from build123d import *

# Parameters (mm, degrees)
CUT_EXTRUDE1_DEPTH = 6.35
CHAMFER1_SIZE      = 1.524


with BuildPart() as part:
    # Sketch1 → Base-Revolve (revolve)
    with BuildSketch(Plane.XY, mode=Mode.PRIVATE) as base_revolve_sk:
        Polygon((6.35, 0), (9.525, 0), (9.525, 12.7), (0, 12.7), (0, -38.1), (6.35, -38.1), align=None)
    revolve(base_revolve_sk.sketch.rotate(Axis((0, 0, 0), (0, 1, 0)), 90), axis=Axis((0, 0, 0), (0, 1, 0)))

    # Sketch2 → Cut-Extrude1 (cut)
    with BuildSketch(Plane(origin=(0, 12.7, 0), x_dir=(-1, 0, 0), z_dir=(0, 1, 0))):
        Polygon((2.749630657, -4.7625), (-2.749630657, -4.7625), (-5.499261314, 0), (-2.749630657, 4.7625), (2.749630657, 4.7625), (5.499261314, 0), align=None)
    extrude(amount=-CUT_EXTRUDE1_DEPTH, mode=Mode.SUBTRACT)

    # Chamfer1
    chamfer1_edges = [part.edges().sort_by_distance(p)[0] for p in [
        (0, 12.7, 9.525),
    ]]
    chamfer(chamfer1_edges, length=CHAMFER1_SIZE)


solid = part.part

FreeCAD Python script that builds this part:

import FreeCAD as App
import Part
import Sketcher
from FreeCAD import Vector
Q = App.Units.Quantity


def edges_at(feature, points):
    """Names of the edges that pass closest to the given points."""
    edges = feature.Shape.Edges
    near = lambda p: min(range(len(edges)), key=lambda i: edges[i].distToShape(Part.Vertex(*p))[0])
    return sorted({f"Edge{near(p) + 1}" for p in points})

doc = App.newDocument("Part")
body = doc.addObject("PartDesign::Body", "Body")

sketch1 = doc.addObject("Sketcher::SketchObject", "Sketch")
body.addObject(sketch1)
sketch1.AttachmentSupport = (doc.XY_Plane, [""])
sketch1.MapMode = "FlatFace"
sketch1.addGeometry(Part.LineSegment(Vector(6.3, 0, 0), Vector(9.5, 0, 0)), False)
sketch1.addGeometry(Part.LineSegment(Vector(9.5, 0, 0), Vector(9.5, 12.7, 0)), False)
sketch1.addGeometry(Part.LineSegment(Vector(9.5, 12.7, 0), Vector(0, 12.7, 0)), False)
sketch1.addGeometry(Part.LineSegment(Vector(0, 12.7, 0), Vector(0, -38.1, 0)), False)
sketch1.addGeometry(Part.LineSegment(Vector(0, -38.1, 0), Vector(6.3, -38.1, 0)), False)
sketch1.addGeometry(Part.LineSegment(Vector(6.3, -38.1, 0), Vector(6.3, 0, 0)), False)
sketch1.addConstraint(Sketcher.Constraint("Coincident", 0, 2, 1, 1))
sketch1.addConstraint(Sketcher.Constraint("Coincident", 1, 2, 2, 1))
sketch1.addConstraint(Sketcher.Constraint("Coincident", 2, 2, 3, 1))
sketch1.addConstraint(Sketcher.Constraint("Coincident", 3, 2, 4, 1))
sketch1.addConstraint(Sketcher.Constraint("Coincident", 4, 2, 5, 1))
sketch1.addConstraint(Sketcher.Constraint("Coincident", 5, 2, 0, 1))
sketch1.addConstraint(Sketcher.Constraint("Horizontal", 0))
sketch1.addConstraint(Sketcher.Constraint("Vertical", 1))
sketch1.addConstraint(Sketcher.Constraint("Horizontal", 2))
sketch1.addConstraint(Sketcher.Constraint("Vertical", 3))
sketch1.addConstraint(Sketcher.Constraint("Horizontal", 4))
sketch1.addConstraint(Sketcher.Constraint("Vertical", 5))
sketch1.addConstraint(Sketcher.Constraint("PointOnObject", 0, 2, -1))
sketch1.addConstraint(Sketcher.Constraint("PointOnObject", 2, 2, -2))
sketch1.addConstraint(Sketcher.Constraint("DistanceY", 3, 2, 3, 1, Q("2 in")))
sketch1.addConstraint(Sketcher.Constraint("DistanceY", 1, 1, 1, 2, Q("0.5 in")))
sketch1.addConstraint(Sketcher.Constraint("DistanceX", 4, 1, 4, 2, Q("0.25 in")))
sketch1.addConstraint(Sketcher.Constraint("DistanceX", 0, 1, 0, 2, Q("0.125 in")))
revolution = doc.addObject("PartDesign::Revolution", "Revolution")
body.addObject(revolution)
revolution.Profile = sketch1
revolution.ReferenceAxis = (sketch1, ["V_Axis"])
revolution.Angle = 360

sketch2 = doc.addObject("Sketcher::SketchObject", "Sketch001")
body.addObject(sketch2)
sketch2.AttachmentSupport = (doc.XZ_Plane, [""])
sketch2.MapMode = "FlatFace"
sketch2.AttachmentOffset = App.Placement(Vector(0, 0, -0.5 * 25.4), App.Rotation())
sketch2.addGeometry(Part.LineSegment(Vector(3, -5, 0), Vector(-3, -5, 0)), False)
sketch2.addGeometry(Part.LineSegment(Vector(-3, -5, 0), Vector(-5, 0, 0)), False)
sketch2.addGeometry(Part.LineSegment(Vector(-5, 0, 0), Vector(-3, 5, 0)), False)
sketch2.addGeometry(Part.LineSegment(Vector(-3, 5, 0), Vector(3, 5, 0)), False)
sketch2.addGeometry(Part.LineSegment(Vector(3, 5, 0), Vector(5, 0, 0)), False)
sketch2.addGeometry(Part.LineSegment(Vector(5, 0, 0), Vector(3, -5, 0)), False)
sketch2.addConstraint(Sketcher.Constraint("Coincident", 0, 2, 1, 1))
sketch2.addConstraint(Sketcher.Constraint("Coincident", 1, 2, 2, 1))
sketch2.addConstraint(Sketcher.Constraint("Coincident", 2, 2, 3, 1))
sketch2.addConstraint(Sketcher.Constraint("Coincident", 3, 2, 4, 1))
sketch2.addConstraint(Sketcher.Constraint("Coincident", 4, 2, 5, 1))
sketch2.addConstraint(Sketcher.Constraint("Coincident", 5, 2, 0, 1))
sketch2.addConstraint(Sketcher.Constraint("Horizontal", 0))
sketch2.addConstraint(Sketcher.Constraint("Horizontal", 3))
sketch2.addConstraint(Sketcher.Constraint("Symmetric", 0, 2, 3, 2, -1, 1))
sketch2.addConstraint(Sketcher.Constraint("Symmetric", 1, 2, 4, 2, -1, 1))
sketch2.addConstraint(Sketcher.Constraint("PointOnObject", 1, 2, -1))
sketch2.addConstraint(Sketcher.Constraint("Parallel", 2, 5))
sketch2.addConstraint(Sketcher.Constraint("Vertical", 0, 2, 2, 2))
sketch2.addConstraint(Sketcher.Constraint("Angle", 1, Q("120 deg")))
sketch2.addConstraint(Sketcher.Constraint("DistanceY", 0, 2, -1, 1, Q("0.1875 in")))
sketch2.addConstraint(Sketcher.Constraint("DistanceX", 0, 2, 0, 1, Q("5.499261 mm")))
pocket1 = doc.addObject("PartDesign::Pocket", "Pocket")
body.addObject(pocket1)
pocket1.Profile = sketch2
pocket1.Length = Q("0.25 in")
pocket1.Reversed = True
doc.recompute()

chamfer = doc.addObject("PartDesign::Chamfer", "Chamfer")
body.addObject(chamfer)
chamfer.Base = (pocket1, edges_at(pocket1, [(0, 12.7, 9.525)]))
chamfer.Size = Q("0.06 in")

doc.recompute()
